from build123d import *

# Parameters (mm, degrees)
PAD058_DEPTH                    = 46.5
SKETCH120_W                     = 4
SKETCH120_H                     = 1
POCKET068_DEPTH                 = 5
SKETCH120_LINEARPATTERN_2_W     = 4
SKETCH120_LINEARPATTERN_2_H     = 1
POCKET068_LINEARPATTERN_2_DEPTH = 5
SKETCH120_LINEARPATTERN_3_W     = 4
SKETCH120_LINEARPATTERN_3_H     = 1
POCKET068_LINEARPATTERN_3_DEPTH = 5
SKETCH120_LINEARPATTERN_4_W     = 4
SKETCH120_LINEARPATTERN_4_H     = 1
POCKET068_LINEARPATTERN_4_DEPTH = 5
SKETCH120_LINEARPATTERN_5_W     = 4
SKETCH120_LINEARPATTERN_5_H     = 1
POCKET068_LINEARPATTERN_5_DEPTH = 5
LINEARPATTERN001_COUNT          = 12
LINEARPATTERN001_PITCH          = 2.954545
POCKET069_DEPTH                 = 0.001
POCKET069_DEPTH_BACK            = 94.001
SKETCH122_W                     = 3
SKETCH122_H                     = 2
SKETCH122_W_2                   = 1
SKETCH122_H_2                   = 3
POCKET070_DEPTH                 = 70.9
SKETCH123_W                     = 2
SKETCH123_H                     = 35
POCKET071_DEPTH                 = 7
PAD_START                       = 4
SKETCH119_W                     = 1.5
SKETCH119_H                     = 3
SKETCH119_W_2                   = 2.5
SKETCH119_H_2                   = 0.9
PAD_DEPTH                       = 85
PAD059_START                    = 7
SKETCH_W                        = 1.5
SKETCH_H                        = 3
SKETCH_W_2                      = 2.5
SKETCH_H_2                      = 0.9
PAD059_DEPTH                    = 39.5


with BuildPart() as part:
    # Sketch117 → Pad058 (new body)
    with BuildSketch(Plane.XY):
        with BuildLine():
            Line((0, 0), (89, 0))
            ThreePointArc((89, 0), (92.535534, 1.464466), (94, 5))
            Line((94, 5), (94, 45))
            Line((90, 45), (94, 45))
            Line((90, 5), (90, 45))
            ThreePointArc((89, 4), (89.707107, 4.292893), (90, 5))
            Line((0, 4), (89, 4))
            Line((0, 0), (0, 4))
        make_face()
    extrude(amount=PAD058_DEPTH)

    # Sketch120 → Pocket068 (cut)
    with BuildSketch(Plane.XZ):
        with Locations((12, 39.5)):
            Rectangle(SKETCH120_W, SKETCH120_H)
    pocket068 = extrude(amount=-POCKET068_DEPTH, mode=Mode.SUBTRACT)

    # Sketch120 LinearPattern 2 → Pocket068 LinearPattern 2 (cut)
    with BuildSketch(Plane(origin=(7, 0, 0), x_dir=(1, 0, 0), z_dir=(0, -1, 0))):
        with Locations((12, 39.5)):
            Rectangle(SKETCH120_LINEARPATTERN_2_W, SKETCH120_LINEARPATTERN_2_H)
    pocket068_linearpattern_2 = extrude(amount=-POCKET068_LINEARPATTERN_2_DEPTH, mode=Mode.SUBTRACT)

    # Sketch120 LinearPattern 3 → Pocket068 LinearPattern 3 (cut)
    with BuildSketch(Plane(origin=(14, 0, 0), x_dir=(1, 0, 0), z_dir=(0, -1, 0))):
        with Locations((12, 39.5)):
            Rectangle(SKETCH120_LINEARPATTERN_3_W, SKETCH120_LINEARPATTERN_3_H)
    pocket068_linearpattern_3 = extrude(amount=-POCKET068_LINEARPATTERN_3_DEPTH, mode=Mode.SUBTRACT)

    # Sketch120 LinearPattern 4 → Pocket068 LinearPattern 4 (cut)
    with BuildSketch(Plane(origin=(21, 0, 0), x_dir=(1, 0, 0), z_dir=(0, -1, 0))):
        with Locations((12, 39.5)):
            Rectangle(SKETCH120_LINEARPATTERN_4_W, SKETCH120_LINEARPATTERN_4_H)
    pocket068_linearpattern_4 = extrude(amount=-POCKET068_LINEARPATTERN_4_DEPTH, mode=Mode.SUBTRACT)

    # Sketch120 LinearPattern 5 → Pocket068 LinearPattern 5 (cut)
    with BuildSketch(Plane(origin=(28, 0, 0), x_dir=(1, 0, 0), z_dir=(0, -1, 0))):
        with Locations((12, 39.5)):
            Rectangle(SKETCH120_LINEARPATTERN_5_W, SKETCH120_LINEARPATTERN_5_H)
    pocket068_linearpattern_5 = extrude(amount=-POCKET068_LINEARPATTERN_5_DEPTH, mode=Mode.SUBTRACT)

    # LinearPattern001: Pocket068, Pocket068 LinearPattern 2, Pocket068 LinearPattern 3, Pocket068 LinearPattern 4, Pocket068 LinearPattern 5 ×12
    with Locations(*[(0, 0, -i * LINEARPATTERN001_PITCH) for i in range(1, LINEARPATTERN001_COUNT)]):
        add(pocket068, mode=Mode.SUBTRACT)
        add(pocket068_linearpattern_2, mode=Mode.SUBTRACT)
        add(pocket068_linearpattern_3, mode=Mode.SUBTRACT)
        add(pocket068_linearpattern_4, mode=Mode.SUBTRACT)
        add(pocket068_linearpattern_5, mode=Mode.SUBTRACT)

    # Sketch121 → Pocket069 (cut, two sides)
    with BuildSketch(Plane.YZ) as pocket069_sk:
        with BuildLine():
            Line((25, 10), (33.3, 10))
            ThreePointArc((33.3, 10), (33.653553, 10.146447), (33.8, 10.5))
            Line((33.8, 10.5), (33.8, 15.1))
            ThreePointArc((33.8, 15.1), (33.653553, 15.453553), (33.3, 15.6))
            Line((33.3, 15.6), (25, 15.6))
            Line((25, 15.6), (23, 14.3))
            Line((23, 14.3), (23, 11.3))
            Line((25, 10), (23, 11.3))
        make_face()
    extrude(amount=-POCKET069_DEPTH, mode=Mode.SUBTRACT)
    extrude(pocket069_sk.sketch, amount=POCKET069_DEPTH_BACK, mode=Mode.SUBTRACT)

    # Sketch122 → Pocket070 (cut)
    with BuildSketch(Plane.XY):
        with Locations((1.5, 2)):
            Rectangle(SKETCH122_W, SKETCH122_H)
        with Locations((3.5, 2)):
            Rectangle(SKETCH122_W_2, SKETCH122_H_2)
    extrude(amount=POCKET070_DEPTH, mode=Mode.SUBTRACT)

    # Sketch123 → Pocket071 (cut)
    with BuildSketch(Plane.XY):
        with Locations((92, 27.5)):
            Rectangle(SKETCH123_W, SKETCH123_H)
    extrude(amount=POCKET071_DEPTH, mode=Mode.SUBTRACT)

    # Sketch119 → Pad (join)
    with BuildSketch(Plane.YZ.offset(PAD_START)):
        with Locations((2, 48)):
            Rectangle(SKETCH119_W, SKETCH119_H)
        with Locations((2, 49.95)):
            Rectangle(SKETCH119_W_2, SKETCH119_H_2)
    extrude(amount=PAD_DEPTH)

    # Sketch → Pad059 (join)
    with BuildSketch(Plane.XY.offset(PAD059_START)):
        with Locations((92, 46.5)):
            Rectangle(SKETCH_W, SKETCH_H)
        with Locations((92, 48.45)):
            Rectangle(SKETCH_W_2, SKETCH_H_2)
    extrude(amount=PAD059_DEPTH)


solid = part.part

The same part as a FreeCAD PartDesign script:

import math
import FreeCAD as App
import Part
import Sketcher
from FreeCAD import Vector
Q = App.Units.Quantity

doc = App.newDocument("Part")
body = doc.addObject("PartDesign::Body", "Body")

sketch1 = body.newObject("Sketcher::SketchObject", "Sketch")
sketch1.AttachmentSupport = (doc.getObject("XY_Plane"), [""])
sketch1.MapMode = "FlatFace"
sketch1.addGeometry([
    Part.LineSegment(Vector(0, 0, 0), Vector(89, 0, 0)),
    Part.ArcOfCircle(Part.Circle(Vector(89, 5, 0), Vector(0, 0, 1), 5), math.radians(-90.000004), math.radians(0.000004)),
    Part.LineSegment(Vector(94, 5, 0), Vector(94, 45, 0)),
    Part.LineSegment(Vector(94, 45, 0), Vector(90, 45, 0)),
    Part.LineSegment(Vector(90, 45, 0), Vector(90, 5, 0)),
    Part.ArcOfCircle(Part.Circle(Vector(89.000001, 4.999999, 0), Vector(0, 0, 1), 0.999999), math.radians(-90.000043), math.radians(0.000043)),
    Part.LineSegment(Vector(89, 4, 0), Vector(0, 4, 0)),
    Part.LineSegment(Vector(0, 4, 0), Vector(0, 0, 0)),
], False)
sketch1.addConstraint([
    Sketcher.Constraint("Tangent", 0, 2, 1, 1),
    Sketcher.Constraint("Tangent", 1, 2, 2, 1),
    Sketcher.Constraint("Coincident", 2, 2, 3, 1),
    Sketcher.Constraint("Coincident", 3, 2, 4, 1),
    Sketcher.Constraint("Tangent", 4, 2, 5, 2),
    Sketcher.Constraint("Tangent", 5, 1, 6, 1),
    Sketcher.Constraint("Coincident", 6, 2, 7, 1),
    Sketcher.Constraint("Coincident", 7, 2, 0, 1),
    Sketcher.Constraint("Horizontal", 0),
    Sketcher.Constraint("Vertical", 2),
    Sketcher.Constraint("Horizontal", 3),
    Sketcher.Constraint("Vertical", 4),
    Sketcher.Constraint("Horizontal", 6),
    Sketcher.Constraint("Vertical", 7),
    Sketcher.Constraint("Coincident", 7, 2, -1, 1),
    Sketcher.Constraint("Coincident", 5, 3, 1, 3),
    Sketcher.Constraint("Radius", 1, Q("5 mm")),
    Sketcher.Constraint("Radius", 5, Q("0.999999 mm")),
    Sketcher.Constraint("DistanceX", 0, 1, 0, 2, Q("89 mm")),
    Sketcher.Constraint("DistanceY", 2, 1, 2, 2, Q("40 mm")),
])
pad1 = body.newObject("PartDesign::Pad", "Pad")
pad1.Profile = sketch1
pad1.Length = 46.5

sketch2 = body.newObject("Sketcher::SketchObject", "Sketch001")
sketch2.AttachmentSupport = (doc.getObject("XZ_Plane"), [""])
sketch2.MapMode = "FlatFace"
sketch2.addGeometry([
    Part.LineSegment(Vector(10, 40, 0), Vector(10, 39, 0)),
    Part.LineSegment(Vector(10, 39, 0), Vector(14, 39, 0)),
    Part.LineSegment(Vector(14, 39, 0), Vector(14, 40, 0)),
    Part.LineSegment(Vector(14, 40, 0), Vector(10, 40, 0)),
], False)
sketch2.addConstraint([
    Sketcher.Constraint("Coincident", 0, 2, 1, 1),
    Sketcher.Constraint("Coincident", 1, 2, 2, 1),
    Sketcher.Constraint("Coincident", 2, 2, 3, 1),
    Sketcher.Constraint("Coincident", 3, 2, 0, 1),
    Sketcher.Constraint("Vertical", 0),
    Sketcher.Constraint("Horizontal", 1),
    Sketcher.Constraint("Vertical", 2),
    Sketcher.Constraint("Horizontal", 3),
    Sketcher.Constraint("DistanceX", 1, 1, 1, 2, Q("4 mm")),
    Sketcher.Constraint("DistanceY", 0, 2, 0, 1, Q("1 mm")),
    Sketcher.Constraint("DistanceX", -1, 1, 0, 2, Q("10 mm")),
    Sketcher.Constraint("DistanceY", -1, 1, 0, 2, Q("39 mm")),
])
pocket1 = body.newObject("PartDesign::Pocket", "Pocket")
pocket1.Profile = sketch2
pocket1.Length = 5

sketch3 = body.newObject("Sketcher::SketchObject", "Sketch002")
sketch3.AttachmentSupport = (doc.getObject("XZ_Plane"), [""])
sketch3.MapMode = "FlatFace"
sketch3.addGeometry([
    Part.LineSegment(Vector(17, 40, 0), Vector(17, 39, 0)),
    Part.LineSegment(Vector(17, 39, 0), Vector(21, 39, 0)),
    Part.LineSegment(Vector(21, 39, 0), Vector(21, 40, 0)),
    Part.LineSegment(Vector(21, 40, 0), Vector(17, 40, 0)),
], False)
sketch3.addConstraint([
    Sketcher.Constraint("Coincident", 0, 2, 1, 1),
    Sketcher.Constraint("Coincident", 1, 2, 2, 1),
    Sketcher.Constraint("Coincident", 2, 2, 3, 1),
    Sketcher.Constraint("Coincident", 3, 2, 0, 1),
    Sketcher.Constraint("Vertical", 0),
    Sketcher.Constraint("Horizontal", 1),
    Sketcher.Constraint("Vertical", 2),
    Sketcher.Constraint("Horizontal", 3),
    Sketcher.Constraint("DistanceX", 1, 1, 1, 2, Q("4 mm")),
    Sketcher.Constraint("DistanceY", 0, 2, 0, 1, Q("1 mm")),
    Sketcher.Constraint("DistanceX", -1, 1, 0, 2, Q("17 mm")),
    Sketcher.Constraint("DistanceY", -1, 1, 0, 2, Q("39 mm")),
])
pocket2 = body.newObject("PartDesign::Pocket", "Pocket001")
pocket2.Profile = sketch3
pocket2.Length = 5

sketch4 = body.newObject("Sketcher::SketchObject", "Sketch003")
sketch4.AttachmentSupport = (doc.getObject("XZ_Plane"), [""])
sketch4.MapMode = "FlatFace"
sketch4.addGeometry([
    Part.LineSegment(Vector(24, 40, 0), Vector(24, 39, 0)),
    Part.LineSegment(Vector(24, 39, 0), Vector(28, 39, 0)),
    Part.LineSegment(Vector(28, 39, 0), Vector(28, 40, 0)),
    Part.LineSegment(Vector(28, 40, 0), Vector(24, 40, 0)),
], False)
sketch4.addConstraint([
    Sketcher.Constraint("Coincident", 0, 2, 1, 1),
    Sketcher.Constraint("Coincident", 1, 2, 2, 1),
    Sketcher.Constraint("Coincident", 2, 2, 3, 1),
    Sketcher.Constraint("Coincident", 3, 2, 0, 1),
    Sketcher.Constraint("Vertical", 0),
    Sketcher.Constraint("Horizontal", 1),
    Sketcher.Constraint("Vertical", 2),
    Sketcher.Constraint("Horizontal", 3),
    Sketcher.Constraint("DistanceX", 1, 1, 1, 2, Q("4 mm")),
    Sketcher.Constraint("DistanceY", 0, 2, 0, 1, Q("1 mm")),
    Sketcher.Constraint("DistanceX", -1, 1, 0, 2, Q("24 mm")),
    Sketcher.Constraint("DistanceY", -1, 1, 0, 2, Q("39 mm")),
])
pocket3 = body.newObject("PartDesign::Pocket", "Pocket002")
pocket3.Profile = sketch4
pocket3.Length = 5

sketch5 = body.newObject("Sketcher::SketchObject", "Sketch004")
sketch5.AttachmentSupport = (doc.getObject("XZ_Plane"), [""])
sketch5.MapMode = "FlatFace"
sketch5.addGeometry([
    Part.LineSegment(Vector(31, 40, 0), Vector(31, 39, 0)),
    Part.LineSegment(Vector(31, 39, 0), Vector(35, 39, 0)),
    Part.LineSegment(Vector(35, 39, 0), Vector(35, 40, 0)),
    Part.LineSegment(Vector(35, 40, 0), Vector(31, 40, 0)),
], False)
sketch5.addConstraint([
    Sketcher.Constraint("Coincident", 0, 2, 1, 1),
    Sketcher.Constraint("Coincident", 1, 2, 2, 1),
    Sketcher.Constraint("Coincident", 2, 2, 3, 1),
    Sketcher.Constraint("Coincident", 3, 2, 0, 1),
    Sketcher.Constraint("Vertical", 0),
    Sketcher.Constraint("Horizontal", 1),
    Sketcher.Constraint("Vertical", 2),
    Sketcher.Constraint("Horizontal", 3),
    Sketcher.Constraint("DistanceX", 1, 1, 1, 2, Q("4 mm")),
    Sketcher.Constraint("DistanceY", 0, 2, 0, 1, Q("1 mm")),
    Sketcher.Constraint("DistanceX", -1, 1, 0, 2, Q("31 mm")),
    Sketcher.Constraint("DistanceY", -1, 1, 0, 2, Q("39 mm")),
])
pocket4 = body.newObject("PartDesign::Pocket", "Pocket003")
pocket4.Profile = sketch5
pocket4.Length = 5

sketch6 = body.newObject("Sketcher::SketchObject", "Sketch005")
sketch6.AttachmentSupport = (doc.getObject("XZ_Plane"), [""])
sketch6.MapMode = "FlatFace"
sketch6.addGeometry([
    Part.LineSegment(Vector(38, 40, 0), Vector(38, 39, 0)),
    Part.LineSegment(Vector(38, 39, 0), Vector(42, 39, 0)),
    Part.LineSegment(Vector(42, 39, 0), Vector(42, 40, 0)),
    Part.LineSegment(Vector(42, 40, 0), Vector(38, 40, 0)),
], False)
sketch6.addConstraint([
    Sketcher.Constraint("Coincident", 0, 2, 1, 1),
    Sketcher.Constraint("Coincident", 1, 2, 2, 1),
    Sketcher.Constraint("Coincident", 2, 2, 3, 1),
    Sketcher.Constraint("Coincident", 3, 2, 0, 1),
    Sketcher.Constraint("Vertical", 0),
    Sketcher.Constraint("Horizontal", 1),
    Sketcher.Constraint("Vertical", 2),
    Sketcher.Constraint("Horizontal", 3),
    Sketcher.Constraint("DistanceX", 1, 1, 1, 2, Q("4 mm")),
    Sketcher.Constraint("DistanceY", 0, 2, 0, 1, Q("1 mm")),
    Sketcher.Constraint("DistanceX", -1, 1, 0, 2, Q("38 mm")),
    Sketcher.Constraint("DistanceY", -1, 1, 0, 2, Q("39 mm")),
])
pocket5 = body.newObject("PartDesign::Pocket", "Pocket004")
pocket5.Profile = sketch6
pocket5.Length = 5
doc.recompute()

linearpattern = body.newObject("PartDesign::LinearPattern", "LinearPattern")
linearpattern.Originals = [pocket1, pocket2, pocket3, pocket4, pocket5]
linearpattern.Direction = (doc.getObject("Z_Axis"), [""])
linearpattern.Mode = "offset"
linearpattern.Offset = 2.954545
linearpattern.Occurrences = 12
linearpattern.Reversed = True
body.Tip = linearpattern

sketch7 = body.newObject("Sketcher::SketchObject", "Sketch006")
sketch7.AttachmentSupport = (doc.getObject("YZ_Plane"), [""])
sketch7.MapMode = "FlatFace"
sketch7.addGeometry([
    Part.LineSegment(Vector(25, 10, 0), Vector(33.3, 10, 0)),
    Part.ArcOfCircle(Part.Circle(Vector(33.299999, 10.500001, 0), Vector(0, 0, 1), 0.500001), math.radians(-89.999847), math.radians(-0.000153)),
    Part.LineSegment(Vector(33.8, 10.5, 0), Vector(33.8, 15.1, 0)),
    Part.ArcOfCircle(Part.Circle(Vector(33.299999, 15.099999, 0), Vector(0, 0, 1), 0.500001), math.radians(0.000153), math.radians(89.999847)),
    Part.LineSegment(Vector(33.3, 15.6, 0), Vector(25, 15.6, 0)),
    Part.LineSegment(Vector(25, 15.6, 0), Vector(23, 14.3, 0)),
    Part.LineSegment(Vector(23, 14.3, 0), Vector(23, 11.3, 0)),
    Part.LineSegment(Vector(23, 11.3, 0), Vector(25, 10, 0)),
], False)
sketch7.addConstraint([
    Sketcher.Constraint("Coincident", 0, 2, 1, 1),
    Sketcher.Constraint("Coincident", 1, 2, 2, 1),
    Sketcher.Constraint("Coincident", 2, 2, 3, 1),
    Sketcher.Constraint("Coincident", 3, 2, 4, 1),
    Sketcher.Constraint("Coincident", 4, 2, 5, 1),
    Sketcher.Constraint("Coincident", 5, 2, 6, 1),
    Sketcher.Constraint("Coincident", 6, 2, 7, 1),
    Sketcher.Constraint("Coincident", 7, 2, 0, 1),
    Sketcher.Constraint("Horizontal", 0),
    Sketcher.Constraint("Vertical", 2),
    Sketcher.Constraint("Horizontal", 4),
    Sketcher.Constraint("Vertical", 6),
    Sketcher.Constraint("Equal", 1, 3),
    Sketcher.Constraint("Horizontal", 3, 3, 2, 2),
    Sketcher.Constraint("Vertical", 3, 3, 0, 2),
    Sketcher.Constraint("Vertical", 0, 2, 3, 2),
    Sketcher.Constraint("Vertical", 4, 2, 7, 2),
    Sketcher.Constraint("Equal", 5, 7),
    Sketcher.Constraint("Radius", 1, Q("0.500001 mm")),
    Sketcher.Constraint("DistanceY", 6, 2, 6, 1, Q("3 mm")),
    Sketcher.Constraint("DistanceX", 0, 1, 0, 2, Q("8.3 mm")),
    Sketcher.Constraint("DistanceY", 2, 1, 2, 2, Q("4.6 mm")),
    Sketcher.Constraint("DistanceY", -1, 1, 0, 2, Q("10 mm")),
    Sketcher.Constraint("DistanceX", -1, 1, 4, 2, Q("25 mm")),
    Sketcher.Constraint("DistanceX", -1, 1, 5, 2, Q("23 mm")),
    Sketcher.Constraint("DistanceY", -1, 1, 3, 3, Q("15.099999 mm")),
])
pocket6 = body.newObject("PartDesign::Pocket", "Pocket005")
pocket6.Profile = sketch7
pocket6.Type = "ThroughAll"
pocket6.Midplane = True

sketch8 = body.newObject("Sketcher::SketchObject", "Sketch007")
sketch8.AttachmentSupport = (doc.getObject("XY_Plane"), [""])
sketch8.MapMode = "FlatFace"
sketch8.addGeometry([
    Part.LineSegment(Vector(0, 3, 0), Vector(0, 1, 0)),
    Part.LineSegment(Vector(0, 1, 0), Vector(3, 1, 0)),
    Part.LineSegment(Vector(3, 1, 0), Vector(3, 0.5, 0)),
    Part.LineSegment(Vector(3, 0.5, 0), Vector(4, 0.5, 0)),
    Part.LineSegment(Vector(4, 0.5, 0), Vector(4, 3.5, 0)),
    Part.LineSegment(Vector(4, 3.5, 0), Vector(3, 3.5, 0)),
    Part.LineSegment(Vector(3, 3.5, 0), Vector(3, 3, 0)),
    Part.LineSegment(Vector(3, 3, 0), Vector(0, 3, 0)),
], False)
sketch8.addConstraint([
    Sketcher.Constraint("Coincident", 0, 2, 1, 1),
    Sketcher.Constraint("Coincident", 1, 2, 2, 1),
    Sketcher.Constraint("Coincident", 2, 2, 3, 1),
    Sketcher.Constraint("Coincident", 3, 2, 4, 1),
    Sketcher.Constraint("Coincident", 4, 2, 5, 1),
    Sketcher.Constraint("Coincident", 5, 2, 6, 1),
    Sketcher.Constraint("Coincident", 6, 2, 7, 1),
    Sketcher.Constraint("Coincident", 7, 2, 0, 1),
    Sketcher.Constraint("Vertical", 0),
    Sketcher.Constraint("Horizontal", 1),
    Sketcher.Constraint("Vertical", 2),
    Sketcher.Constraint("Horizontal", 3),
    Sketcher.Constraint("Vertical", 4),
    Sketcher.Constraint("Horizontal", 5),
    Sketcher.Constraint("Vertical", 6),
    Sketcher.Constraint("Horizontal", 7),
    Sketcher.Constraint("PointOnObject", 0, 2, -2),
    Sketcher.Constraint("Vertical", 2, 2, 5, 2),
    Sketcher.Constraint("Equal", 7, 4),
    Sketcher.Constraint("Equal", 2, 6),
    Sketcher.Constraint("DistanceX", 1, 1, 1, 2, Q("3 mm")),
    Sketcher.Constraint("DistanceX", 3, 1, 3, 2, Q("1 mm")),
    Sketcher.Constraint("DistanceY", 0, 2, 0, 1, Q("2 mm")),
    Sketcher.Constraint("DistanceY", -1, 1, 0, 2, Q("1 mm")),
])
pocket7 = body.newObject("PartDesign::Pocket", "Pocket006")
pocket7.Profile = sketch8
pocket7.Length = 70.9
pocket7.Reversed = True

sketch9 = body.newObject("Sketcher::SketchObject", "Sketch008")
sketch9.AttachmentSupport = (doc.getObject("XY_Plane"), [""])
sketch9.MapMode = "FlatFace"
sketch9.addGeometry([
    Part.LineSegment(Vector(91, 45, 0), Vector(91, 10, 0)),
    Part.LineSegment(Vector(91, 10, 0), Vector(93, 10, 0)),
    Part.LineSegment(Vector(93, 10, 0), Vector(93, 45, 0)),
    Part.LineSegment(Vector(93, 45, 0), Vector(91, 45, 0)),
], False)
sketch9.addConstraint([
    Sketcher.Constraint("Coincident", 0, 2, 1, 1),
    Sketcher.Constraint("Coincident", 1, 2, 2, 1),
    Sketcher.Constraint("Coincident", 2, 2, 3, 1),
    Sketcher.Constraint("Coincident", 3, 2, 0, 1),
    Sketcher.Constraint("Vertical", 0),
    Sketcher.Constraint("Horizontal", 1),
    Sketcher.Constraint("Vertical", 2),
    Sketcher.Constraint("Horizontal", 3),
    Sketcher.Constraint("DistanceX", 1, 1, 1, 2, Q("2 mm")),
    Sketcher.Constraint("DistanceY", 0, 2, 0, 1, Q("35 mm")),
    Sketcher.Constraint("DistanceX", -1, 1, 0, 2, Q("91 mm")),
    Sketcher.Constraint("DistanceY", -1, 1, 0, 2, Q("10 mm")),
])
pocket8 = body.newObject("PartDesign::Pocket", "Pocket007")
pocket8.Profile = sketch9
pocket8.Length = 7
pocket8.Reversed = True

sketch10 = body.newObject("Sketcher::SketchObject", "Sketch009")
sketch10.AttachmentSupport = (doc.getObject("YZ_Plane"), [""])
sketch10.MapMode = "FlatFace"
sketch10.AttachmentOffset = App.Placement(Vector(0, 0, 4), App.Rotation())
sketch10.addGeometry([
    Part.LineSegment(Vector(1.25, 49.5, 0), Vector(1.25, 46.5, 0)),
    Part.LineSegment(Vector(1.25, 46.5, 0), Vector(2.75, 46.5, 0)),
    Part.LineSegment(Vector(2.75, 46.5, 0), Vector(2.75, 49.5, 0)),
    Part.LineSegment(Vector(2.75, 49.5, 0), Vector(3.25, 49.5, 0)),
    Part.LineSegment(Vector(3.25, 49.5, 0), Vector(3.25, 50.4, 0)),
    Part.LineSegment(Vector(3.25, 50.4, 0), Vector(0.75, 50.4, 0)),
    Part.LineSegment(Vector(0.75, 50.4, 0), Vector(0.75, 49.5, 0)),
    Part.LineSegment(Vector(0.75, 49.5, 0), Vector(1.25, 49.5, 0)),
], False)
sketch10.addConstraint([
    Sketcher.Constraint("Coincident", 0, 2, 1, 1),
    Sketcher.Constraint("Coincident", 1, 2, 2, 1),
    Sketcher.Constraint("Coincident", 2, 2, 3, 1),
    Sketcher.Constraint("Coincident", 3, 2, 4, 1),
    Sketcher.Constraint("Coincident", 4, 2, 5, 1),
    Sketcher.Constraint("Coincident", 5, 2, 6, 1),
    Sketcher.Constraint("Coincident", 6, 2, 7, 1),
    Sketcher.Constraint("Coincident", 7, 2, 0, 1),
    Sketcher.Constraint("Vertical", 0),
    Sketcher.Constraint("Horizontal", 1),
    Sketcher.Constraint("Vertical", 2),
    Sketcher.Constraint("Horizontal", 3),
    Sketcher.Constraint("Vertical", 4),
    Sketcher.Constraint("Horizontal", 5),
    Sketcher.Constraint("Vertical", 6),
    Sketcher.Constraint("Horizontal", 7),
    Sketcher.Constraint("Horizontal", 3, 2, 6, 2),
    Sketcher.Constraint("Equal", 3, 7),
    Sketcher.Constraint("DistanceY", 0, 2, 0, 1, Q("3 mm")),
    Sketcher.Constraint("DistanceX", 1, 1, 1, 2, Q("1.5 mm")),
    Sketcher.Constraint("DistanceX", 3, 1, 3, 2, Q("0.5 mm")),
    Sketcher.Constraint("DistanceY", 4, 1, 4, 2, Q("0.9 mm")),
    Sketcher.Constraint("DistanceY", -1, 1, 0, 2, Q("46.5 mm")),
    Sketcher.Constraint("DistanceX", -1, 1, 0, 2, Q("1.25 mm")),
])
pad2 = body.newObject("PartDesign::Pad", "Pad001")
pad2.Profile = sketch10
pad2.Length = 85

sketch11 = body.newObject("Sketcher::SketchObject", "Sketch010")
sketch11.AttachmentSupport = (doc.getObject("XY_Plane"), [""])
sketch11.MapMode = "FlatFace"
sketch11.AttachmentOffset = App.Placement(Vector(0, 0, 7), App.Rotation())
sketch11.addGeometry([
    Part.LineSegment(Vector(91.25, 48, 0), Vector(91.25, 45, 0)),
    Part.LineSegment(Vector(91.25, 45, 0), Vector(92.75, 45, 0)),
    Part.LineSegment(Vector(92.75, 45, 0), Vector(92.75, 48, 0)),
    Part.LineSegment(Vector(92.75, 48, 0), Vector(93.25, 48, 0)),
    Part.LineSegment(Vector(93.25, 48, 0), Vector(93.25, 48.9, 0)),
    Part.LineSegment(Vector(93.25, 48.9, 0), Vector(90.75, 48.9, 0)),
    Part.LineSegment(Vector(90.75, 48.9, 0), Vector(90.75, 48, 0)),
    Part.LineSegment(Vector(90.75, 48, 0), Vector(91.25, 48, 0)),
], False)
sketch11.addConstraint([
    Sketcher.Constraint("Coincident", 0, 2, 1, 1),
    Sketcher.Constraint("Coincident", 1, 2, 2, 1),
    Sketcher.Constraint("Coincident", 2, 2, 3, 1),
    Sketcher.Constraint("Coincident", 3, 2, 4, 1),
    Sketcher.Constraint("Coincident", 4, 2, 5, 1),
    Sketcher.Constraint("Coincident", 5, 2, 6, 1),
    Sketcher.Constraint("Coincident", 6, 2, 7, 1),
    Sketcher.Constraint("Coincident", 7, 2, 0, 1),
    Sketcher.Constraint("Vertical", 0),
    Sketcher.Constraint("Horizontal", 1),
    Sketcher.Constraint("Vertical", 2),
    Sketcher.Constraint("Horizontal", 3),
    Sketcher.Constraint("Vertical", 4),
    Sketcher.Constraint("Horizontal", 5),
    Sketcher.Constraint("Vertical", 6),
    Sketcher.Constraint("Horizontal", 7),
    Sketcher.Constraint("Horizontal", 3, 2, 6, 2),
    Sketcher.Constraint("Equal", 3, 7),
    Sketcher.Constraint("DistanceY", 0, 2, 0, 1, Q("3 mm")),
    Sketcher.Constraint("DistanceX", 1, 1, 1, 2, Q("1.5 mm")),
    Sketcher.Constraint("DistanceX", 3, 1, 3, 2, Q("0.5 mm")),
    Sketcher.Constraint("DistanceY", 4, 1, 4, 2, Q("0.9 mm")),
    Sketcher.Constraint("DistanceY", -1, 1, 0, 2, Q("45 mm")),
    Sketcher.Constraint("DistanceX", -1, 1, 0, 2, Q("91.25 mm")),
])
pad3 = body.newObject("PartDesign::Pad", "Pad002")
pad3.Profile = sketch11
pad3.Length = 39.5

doc.recompute()
